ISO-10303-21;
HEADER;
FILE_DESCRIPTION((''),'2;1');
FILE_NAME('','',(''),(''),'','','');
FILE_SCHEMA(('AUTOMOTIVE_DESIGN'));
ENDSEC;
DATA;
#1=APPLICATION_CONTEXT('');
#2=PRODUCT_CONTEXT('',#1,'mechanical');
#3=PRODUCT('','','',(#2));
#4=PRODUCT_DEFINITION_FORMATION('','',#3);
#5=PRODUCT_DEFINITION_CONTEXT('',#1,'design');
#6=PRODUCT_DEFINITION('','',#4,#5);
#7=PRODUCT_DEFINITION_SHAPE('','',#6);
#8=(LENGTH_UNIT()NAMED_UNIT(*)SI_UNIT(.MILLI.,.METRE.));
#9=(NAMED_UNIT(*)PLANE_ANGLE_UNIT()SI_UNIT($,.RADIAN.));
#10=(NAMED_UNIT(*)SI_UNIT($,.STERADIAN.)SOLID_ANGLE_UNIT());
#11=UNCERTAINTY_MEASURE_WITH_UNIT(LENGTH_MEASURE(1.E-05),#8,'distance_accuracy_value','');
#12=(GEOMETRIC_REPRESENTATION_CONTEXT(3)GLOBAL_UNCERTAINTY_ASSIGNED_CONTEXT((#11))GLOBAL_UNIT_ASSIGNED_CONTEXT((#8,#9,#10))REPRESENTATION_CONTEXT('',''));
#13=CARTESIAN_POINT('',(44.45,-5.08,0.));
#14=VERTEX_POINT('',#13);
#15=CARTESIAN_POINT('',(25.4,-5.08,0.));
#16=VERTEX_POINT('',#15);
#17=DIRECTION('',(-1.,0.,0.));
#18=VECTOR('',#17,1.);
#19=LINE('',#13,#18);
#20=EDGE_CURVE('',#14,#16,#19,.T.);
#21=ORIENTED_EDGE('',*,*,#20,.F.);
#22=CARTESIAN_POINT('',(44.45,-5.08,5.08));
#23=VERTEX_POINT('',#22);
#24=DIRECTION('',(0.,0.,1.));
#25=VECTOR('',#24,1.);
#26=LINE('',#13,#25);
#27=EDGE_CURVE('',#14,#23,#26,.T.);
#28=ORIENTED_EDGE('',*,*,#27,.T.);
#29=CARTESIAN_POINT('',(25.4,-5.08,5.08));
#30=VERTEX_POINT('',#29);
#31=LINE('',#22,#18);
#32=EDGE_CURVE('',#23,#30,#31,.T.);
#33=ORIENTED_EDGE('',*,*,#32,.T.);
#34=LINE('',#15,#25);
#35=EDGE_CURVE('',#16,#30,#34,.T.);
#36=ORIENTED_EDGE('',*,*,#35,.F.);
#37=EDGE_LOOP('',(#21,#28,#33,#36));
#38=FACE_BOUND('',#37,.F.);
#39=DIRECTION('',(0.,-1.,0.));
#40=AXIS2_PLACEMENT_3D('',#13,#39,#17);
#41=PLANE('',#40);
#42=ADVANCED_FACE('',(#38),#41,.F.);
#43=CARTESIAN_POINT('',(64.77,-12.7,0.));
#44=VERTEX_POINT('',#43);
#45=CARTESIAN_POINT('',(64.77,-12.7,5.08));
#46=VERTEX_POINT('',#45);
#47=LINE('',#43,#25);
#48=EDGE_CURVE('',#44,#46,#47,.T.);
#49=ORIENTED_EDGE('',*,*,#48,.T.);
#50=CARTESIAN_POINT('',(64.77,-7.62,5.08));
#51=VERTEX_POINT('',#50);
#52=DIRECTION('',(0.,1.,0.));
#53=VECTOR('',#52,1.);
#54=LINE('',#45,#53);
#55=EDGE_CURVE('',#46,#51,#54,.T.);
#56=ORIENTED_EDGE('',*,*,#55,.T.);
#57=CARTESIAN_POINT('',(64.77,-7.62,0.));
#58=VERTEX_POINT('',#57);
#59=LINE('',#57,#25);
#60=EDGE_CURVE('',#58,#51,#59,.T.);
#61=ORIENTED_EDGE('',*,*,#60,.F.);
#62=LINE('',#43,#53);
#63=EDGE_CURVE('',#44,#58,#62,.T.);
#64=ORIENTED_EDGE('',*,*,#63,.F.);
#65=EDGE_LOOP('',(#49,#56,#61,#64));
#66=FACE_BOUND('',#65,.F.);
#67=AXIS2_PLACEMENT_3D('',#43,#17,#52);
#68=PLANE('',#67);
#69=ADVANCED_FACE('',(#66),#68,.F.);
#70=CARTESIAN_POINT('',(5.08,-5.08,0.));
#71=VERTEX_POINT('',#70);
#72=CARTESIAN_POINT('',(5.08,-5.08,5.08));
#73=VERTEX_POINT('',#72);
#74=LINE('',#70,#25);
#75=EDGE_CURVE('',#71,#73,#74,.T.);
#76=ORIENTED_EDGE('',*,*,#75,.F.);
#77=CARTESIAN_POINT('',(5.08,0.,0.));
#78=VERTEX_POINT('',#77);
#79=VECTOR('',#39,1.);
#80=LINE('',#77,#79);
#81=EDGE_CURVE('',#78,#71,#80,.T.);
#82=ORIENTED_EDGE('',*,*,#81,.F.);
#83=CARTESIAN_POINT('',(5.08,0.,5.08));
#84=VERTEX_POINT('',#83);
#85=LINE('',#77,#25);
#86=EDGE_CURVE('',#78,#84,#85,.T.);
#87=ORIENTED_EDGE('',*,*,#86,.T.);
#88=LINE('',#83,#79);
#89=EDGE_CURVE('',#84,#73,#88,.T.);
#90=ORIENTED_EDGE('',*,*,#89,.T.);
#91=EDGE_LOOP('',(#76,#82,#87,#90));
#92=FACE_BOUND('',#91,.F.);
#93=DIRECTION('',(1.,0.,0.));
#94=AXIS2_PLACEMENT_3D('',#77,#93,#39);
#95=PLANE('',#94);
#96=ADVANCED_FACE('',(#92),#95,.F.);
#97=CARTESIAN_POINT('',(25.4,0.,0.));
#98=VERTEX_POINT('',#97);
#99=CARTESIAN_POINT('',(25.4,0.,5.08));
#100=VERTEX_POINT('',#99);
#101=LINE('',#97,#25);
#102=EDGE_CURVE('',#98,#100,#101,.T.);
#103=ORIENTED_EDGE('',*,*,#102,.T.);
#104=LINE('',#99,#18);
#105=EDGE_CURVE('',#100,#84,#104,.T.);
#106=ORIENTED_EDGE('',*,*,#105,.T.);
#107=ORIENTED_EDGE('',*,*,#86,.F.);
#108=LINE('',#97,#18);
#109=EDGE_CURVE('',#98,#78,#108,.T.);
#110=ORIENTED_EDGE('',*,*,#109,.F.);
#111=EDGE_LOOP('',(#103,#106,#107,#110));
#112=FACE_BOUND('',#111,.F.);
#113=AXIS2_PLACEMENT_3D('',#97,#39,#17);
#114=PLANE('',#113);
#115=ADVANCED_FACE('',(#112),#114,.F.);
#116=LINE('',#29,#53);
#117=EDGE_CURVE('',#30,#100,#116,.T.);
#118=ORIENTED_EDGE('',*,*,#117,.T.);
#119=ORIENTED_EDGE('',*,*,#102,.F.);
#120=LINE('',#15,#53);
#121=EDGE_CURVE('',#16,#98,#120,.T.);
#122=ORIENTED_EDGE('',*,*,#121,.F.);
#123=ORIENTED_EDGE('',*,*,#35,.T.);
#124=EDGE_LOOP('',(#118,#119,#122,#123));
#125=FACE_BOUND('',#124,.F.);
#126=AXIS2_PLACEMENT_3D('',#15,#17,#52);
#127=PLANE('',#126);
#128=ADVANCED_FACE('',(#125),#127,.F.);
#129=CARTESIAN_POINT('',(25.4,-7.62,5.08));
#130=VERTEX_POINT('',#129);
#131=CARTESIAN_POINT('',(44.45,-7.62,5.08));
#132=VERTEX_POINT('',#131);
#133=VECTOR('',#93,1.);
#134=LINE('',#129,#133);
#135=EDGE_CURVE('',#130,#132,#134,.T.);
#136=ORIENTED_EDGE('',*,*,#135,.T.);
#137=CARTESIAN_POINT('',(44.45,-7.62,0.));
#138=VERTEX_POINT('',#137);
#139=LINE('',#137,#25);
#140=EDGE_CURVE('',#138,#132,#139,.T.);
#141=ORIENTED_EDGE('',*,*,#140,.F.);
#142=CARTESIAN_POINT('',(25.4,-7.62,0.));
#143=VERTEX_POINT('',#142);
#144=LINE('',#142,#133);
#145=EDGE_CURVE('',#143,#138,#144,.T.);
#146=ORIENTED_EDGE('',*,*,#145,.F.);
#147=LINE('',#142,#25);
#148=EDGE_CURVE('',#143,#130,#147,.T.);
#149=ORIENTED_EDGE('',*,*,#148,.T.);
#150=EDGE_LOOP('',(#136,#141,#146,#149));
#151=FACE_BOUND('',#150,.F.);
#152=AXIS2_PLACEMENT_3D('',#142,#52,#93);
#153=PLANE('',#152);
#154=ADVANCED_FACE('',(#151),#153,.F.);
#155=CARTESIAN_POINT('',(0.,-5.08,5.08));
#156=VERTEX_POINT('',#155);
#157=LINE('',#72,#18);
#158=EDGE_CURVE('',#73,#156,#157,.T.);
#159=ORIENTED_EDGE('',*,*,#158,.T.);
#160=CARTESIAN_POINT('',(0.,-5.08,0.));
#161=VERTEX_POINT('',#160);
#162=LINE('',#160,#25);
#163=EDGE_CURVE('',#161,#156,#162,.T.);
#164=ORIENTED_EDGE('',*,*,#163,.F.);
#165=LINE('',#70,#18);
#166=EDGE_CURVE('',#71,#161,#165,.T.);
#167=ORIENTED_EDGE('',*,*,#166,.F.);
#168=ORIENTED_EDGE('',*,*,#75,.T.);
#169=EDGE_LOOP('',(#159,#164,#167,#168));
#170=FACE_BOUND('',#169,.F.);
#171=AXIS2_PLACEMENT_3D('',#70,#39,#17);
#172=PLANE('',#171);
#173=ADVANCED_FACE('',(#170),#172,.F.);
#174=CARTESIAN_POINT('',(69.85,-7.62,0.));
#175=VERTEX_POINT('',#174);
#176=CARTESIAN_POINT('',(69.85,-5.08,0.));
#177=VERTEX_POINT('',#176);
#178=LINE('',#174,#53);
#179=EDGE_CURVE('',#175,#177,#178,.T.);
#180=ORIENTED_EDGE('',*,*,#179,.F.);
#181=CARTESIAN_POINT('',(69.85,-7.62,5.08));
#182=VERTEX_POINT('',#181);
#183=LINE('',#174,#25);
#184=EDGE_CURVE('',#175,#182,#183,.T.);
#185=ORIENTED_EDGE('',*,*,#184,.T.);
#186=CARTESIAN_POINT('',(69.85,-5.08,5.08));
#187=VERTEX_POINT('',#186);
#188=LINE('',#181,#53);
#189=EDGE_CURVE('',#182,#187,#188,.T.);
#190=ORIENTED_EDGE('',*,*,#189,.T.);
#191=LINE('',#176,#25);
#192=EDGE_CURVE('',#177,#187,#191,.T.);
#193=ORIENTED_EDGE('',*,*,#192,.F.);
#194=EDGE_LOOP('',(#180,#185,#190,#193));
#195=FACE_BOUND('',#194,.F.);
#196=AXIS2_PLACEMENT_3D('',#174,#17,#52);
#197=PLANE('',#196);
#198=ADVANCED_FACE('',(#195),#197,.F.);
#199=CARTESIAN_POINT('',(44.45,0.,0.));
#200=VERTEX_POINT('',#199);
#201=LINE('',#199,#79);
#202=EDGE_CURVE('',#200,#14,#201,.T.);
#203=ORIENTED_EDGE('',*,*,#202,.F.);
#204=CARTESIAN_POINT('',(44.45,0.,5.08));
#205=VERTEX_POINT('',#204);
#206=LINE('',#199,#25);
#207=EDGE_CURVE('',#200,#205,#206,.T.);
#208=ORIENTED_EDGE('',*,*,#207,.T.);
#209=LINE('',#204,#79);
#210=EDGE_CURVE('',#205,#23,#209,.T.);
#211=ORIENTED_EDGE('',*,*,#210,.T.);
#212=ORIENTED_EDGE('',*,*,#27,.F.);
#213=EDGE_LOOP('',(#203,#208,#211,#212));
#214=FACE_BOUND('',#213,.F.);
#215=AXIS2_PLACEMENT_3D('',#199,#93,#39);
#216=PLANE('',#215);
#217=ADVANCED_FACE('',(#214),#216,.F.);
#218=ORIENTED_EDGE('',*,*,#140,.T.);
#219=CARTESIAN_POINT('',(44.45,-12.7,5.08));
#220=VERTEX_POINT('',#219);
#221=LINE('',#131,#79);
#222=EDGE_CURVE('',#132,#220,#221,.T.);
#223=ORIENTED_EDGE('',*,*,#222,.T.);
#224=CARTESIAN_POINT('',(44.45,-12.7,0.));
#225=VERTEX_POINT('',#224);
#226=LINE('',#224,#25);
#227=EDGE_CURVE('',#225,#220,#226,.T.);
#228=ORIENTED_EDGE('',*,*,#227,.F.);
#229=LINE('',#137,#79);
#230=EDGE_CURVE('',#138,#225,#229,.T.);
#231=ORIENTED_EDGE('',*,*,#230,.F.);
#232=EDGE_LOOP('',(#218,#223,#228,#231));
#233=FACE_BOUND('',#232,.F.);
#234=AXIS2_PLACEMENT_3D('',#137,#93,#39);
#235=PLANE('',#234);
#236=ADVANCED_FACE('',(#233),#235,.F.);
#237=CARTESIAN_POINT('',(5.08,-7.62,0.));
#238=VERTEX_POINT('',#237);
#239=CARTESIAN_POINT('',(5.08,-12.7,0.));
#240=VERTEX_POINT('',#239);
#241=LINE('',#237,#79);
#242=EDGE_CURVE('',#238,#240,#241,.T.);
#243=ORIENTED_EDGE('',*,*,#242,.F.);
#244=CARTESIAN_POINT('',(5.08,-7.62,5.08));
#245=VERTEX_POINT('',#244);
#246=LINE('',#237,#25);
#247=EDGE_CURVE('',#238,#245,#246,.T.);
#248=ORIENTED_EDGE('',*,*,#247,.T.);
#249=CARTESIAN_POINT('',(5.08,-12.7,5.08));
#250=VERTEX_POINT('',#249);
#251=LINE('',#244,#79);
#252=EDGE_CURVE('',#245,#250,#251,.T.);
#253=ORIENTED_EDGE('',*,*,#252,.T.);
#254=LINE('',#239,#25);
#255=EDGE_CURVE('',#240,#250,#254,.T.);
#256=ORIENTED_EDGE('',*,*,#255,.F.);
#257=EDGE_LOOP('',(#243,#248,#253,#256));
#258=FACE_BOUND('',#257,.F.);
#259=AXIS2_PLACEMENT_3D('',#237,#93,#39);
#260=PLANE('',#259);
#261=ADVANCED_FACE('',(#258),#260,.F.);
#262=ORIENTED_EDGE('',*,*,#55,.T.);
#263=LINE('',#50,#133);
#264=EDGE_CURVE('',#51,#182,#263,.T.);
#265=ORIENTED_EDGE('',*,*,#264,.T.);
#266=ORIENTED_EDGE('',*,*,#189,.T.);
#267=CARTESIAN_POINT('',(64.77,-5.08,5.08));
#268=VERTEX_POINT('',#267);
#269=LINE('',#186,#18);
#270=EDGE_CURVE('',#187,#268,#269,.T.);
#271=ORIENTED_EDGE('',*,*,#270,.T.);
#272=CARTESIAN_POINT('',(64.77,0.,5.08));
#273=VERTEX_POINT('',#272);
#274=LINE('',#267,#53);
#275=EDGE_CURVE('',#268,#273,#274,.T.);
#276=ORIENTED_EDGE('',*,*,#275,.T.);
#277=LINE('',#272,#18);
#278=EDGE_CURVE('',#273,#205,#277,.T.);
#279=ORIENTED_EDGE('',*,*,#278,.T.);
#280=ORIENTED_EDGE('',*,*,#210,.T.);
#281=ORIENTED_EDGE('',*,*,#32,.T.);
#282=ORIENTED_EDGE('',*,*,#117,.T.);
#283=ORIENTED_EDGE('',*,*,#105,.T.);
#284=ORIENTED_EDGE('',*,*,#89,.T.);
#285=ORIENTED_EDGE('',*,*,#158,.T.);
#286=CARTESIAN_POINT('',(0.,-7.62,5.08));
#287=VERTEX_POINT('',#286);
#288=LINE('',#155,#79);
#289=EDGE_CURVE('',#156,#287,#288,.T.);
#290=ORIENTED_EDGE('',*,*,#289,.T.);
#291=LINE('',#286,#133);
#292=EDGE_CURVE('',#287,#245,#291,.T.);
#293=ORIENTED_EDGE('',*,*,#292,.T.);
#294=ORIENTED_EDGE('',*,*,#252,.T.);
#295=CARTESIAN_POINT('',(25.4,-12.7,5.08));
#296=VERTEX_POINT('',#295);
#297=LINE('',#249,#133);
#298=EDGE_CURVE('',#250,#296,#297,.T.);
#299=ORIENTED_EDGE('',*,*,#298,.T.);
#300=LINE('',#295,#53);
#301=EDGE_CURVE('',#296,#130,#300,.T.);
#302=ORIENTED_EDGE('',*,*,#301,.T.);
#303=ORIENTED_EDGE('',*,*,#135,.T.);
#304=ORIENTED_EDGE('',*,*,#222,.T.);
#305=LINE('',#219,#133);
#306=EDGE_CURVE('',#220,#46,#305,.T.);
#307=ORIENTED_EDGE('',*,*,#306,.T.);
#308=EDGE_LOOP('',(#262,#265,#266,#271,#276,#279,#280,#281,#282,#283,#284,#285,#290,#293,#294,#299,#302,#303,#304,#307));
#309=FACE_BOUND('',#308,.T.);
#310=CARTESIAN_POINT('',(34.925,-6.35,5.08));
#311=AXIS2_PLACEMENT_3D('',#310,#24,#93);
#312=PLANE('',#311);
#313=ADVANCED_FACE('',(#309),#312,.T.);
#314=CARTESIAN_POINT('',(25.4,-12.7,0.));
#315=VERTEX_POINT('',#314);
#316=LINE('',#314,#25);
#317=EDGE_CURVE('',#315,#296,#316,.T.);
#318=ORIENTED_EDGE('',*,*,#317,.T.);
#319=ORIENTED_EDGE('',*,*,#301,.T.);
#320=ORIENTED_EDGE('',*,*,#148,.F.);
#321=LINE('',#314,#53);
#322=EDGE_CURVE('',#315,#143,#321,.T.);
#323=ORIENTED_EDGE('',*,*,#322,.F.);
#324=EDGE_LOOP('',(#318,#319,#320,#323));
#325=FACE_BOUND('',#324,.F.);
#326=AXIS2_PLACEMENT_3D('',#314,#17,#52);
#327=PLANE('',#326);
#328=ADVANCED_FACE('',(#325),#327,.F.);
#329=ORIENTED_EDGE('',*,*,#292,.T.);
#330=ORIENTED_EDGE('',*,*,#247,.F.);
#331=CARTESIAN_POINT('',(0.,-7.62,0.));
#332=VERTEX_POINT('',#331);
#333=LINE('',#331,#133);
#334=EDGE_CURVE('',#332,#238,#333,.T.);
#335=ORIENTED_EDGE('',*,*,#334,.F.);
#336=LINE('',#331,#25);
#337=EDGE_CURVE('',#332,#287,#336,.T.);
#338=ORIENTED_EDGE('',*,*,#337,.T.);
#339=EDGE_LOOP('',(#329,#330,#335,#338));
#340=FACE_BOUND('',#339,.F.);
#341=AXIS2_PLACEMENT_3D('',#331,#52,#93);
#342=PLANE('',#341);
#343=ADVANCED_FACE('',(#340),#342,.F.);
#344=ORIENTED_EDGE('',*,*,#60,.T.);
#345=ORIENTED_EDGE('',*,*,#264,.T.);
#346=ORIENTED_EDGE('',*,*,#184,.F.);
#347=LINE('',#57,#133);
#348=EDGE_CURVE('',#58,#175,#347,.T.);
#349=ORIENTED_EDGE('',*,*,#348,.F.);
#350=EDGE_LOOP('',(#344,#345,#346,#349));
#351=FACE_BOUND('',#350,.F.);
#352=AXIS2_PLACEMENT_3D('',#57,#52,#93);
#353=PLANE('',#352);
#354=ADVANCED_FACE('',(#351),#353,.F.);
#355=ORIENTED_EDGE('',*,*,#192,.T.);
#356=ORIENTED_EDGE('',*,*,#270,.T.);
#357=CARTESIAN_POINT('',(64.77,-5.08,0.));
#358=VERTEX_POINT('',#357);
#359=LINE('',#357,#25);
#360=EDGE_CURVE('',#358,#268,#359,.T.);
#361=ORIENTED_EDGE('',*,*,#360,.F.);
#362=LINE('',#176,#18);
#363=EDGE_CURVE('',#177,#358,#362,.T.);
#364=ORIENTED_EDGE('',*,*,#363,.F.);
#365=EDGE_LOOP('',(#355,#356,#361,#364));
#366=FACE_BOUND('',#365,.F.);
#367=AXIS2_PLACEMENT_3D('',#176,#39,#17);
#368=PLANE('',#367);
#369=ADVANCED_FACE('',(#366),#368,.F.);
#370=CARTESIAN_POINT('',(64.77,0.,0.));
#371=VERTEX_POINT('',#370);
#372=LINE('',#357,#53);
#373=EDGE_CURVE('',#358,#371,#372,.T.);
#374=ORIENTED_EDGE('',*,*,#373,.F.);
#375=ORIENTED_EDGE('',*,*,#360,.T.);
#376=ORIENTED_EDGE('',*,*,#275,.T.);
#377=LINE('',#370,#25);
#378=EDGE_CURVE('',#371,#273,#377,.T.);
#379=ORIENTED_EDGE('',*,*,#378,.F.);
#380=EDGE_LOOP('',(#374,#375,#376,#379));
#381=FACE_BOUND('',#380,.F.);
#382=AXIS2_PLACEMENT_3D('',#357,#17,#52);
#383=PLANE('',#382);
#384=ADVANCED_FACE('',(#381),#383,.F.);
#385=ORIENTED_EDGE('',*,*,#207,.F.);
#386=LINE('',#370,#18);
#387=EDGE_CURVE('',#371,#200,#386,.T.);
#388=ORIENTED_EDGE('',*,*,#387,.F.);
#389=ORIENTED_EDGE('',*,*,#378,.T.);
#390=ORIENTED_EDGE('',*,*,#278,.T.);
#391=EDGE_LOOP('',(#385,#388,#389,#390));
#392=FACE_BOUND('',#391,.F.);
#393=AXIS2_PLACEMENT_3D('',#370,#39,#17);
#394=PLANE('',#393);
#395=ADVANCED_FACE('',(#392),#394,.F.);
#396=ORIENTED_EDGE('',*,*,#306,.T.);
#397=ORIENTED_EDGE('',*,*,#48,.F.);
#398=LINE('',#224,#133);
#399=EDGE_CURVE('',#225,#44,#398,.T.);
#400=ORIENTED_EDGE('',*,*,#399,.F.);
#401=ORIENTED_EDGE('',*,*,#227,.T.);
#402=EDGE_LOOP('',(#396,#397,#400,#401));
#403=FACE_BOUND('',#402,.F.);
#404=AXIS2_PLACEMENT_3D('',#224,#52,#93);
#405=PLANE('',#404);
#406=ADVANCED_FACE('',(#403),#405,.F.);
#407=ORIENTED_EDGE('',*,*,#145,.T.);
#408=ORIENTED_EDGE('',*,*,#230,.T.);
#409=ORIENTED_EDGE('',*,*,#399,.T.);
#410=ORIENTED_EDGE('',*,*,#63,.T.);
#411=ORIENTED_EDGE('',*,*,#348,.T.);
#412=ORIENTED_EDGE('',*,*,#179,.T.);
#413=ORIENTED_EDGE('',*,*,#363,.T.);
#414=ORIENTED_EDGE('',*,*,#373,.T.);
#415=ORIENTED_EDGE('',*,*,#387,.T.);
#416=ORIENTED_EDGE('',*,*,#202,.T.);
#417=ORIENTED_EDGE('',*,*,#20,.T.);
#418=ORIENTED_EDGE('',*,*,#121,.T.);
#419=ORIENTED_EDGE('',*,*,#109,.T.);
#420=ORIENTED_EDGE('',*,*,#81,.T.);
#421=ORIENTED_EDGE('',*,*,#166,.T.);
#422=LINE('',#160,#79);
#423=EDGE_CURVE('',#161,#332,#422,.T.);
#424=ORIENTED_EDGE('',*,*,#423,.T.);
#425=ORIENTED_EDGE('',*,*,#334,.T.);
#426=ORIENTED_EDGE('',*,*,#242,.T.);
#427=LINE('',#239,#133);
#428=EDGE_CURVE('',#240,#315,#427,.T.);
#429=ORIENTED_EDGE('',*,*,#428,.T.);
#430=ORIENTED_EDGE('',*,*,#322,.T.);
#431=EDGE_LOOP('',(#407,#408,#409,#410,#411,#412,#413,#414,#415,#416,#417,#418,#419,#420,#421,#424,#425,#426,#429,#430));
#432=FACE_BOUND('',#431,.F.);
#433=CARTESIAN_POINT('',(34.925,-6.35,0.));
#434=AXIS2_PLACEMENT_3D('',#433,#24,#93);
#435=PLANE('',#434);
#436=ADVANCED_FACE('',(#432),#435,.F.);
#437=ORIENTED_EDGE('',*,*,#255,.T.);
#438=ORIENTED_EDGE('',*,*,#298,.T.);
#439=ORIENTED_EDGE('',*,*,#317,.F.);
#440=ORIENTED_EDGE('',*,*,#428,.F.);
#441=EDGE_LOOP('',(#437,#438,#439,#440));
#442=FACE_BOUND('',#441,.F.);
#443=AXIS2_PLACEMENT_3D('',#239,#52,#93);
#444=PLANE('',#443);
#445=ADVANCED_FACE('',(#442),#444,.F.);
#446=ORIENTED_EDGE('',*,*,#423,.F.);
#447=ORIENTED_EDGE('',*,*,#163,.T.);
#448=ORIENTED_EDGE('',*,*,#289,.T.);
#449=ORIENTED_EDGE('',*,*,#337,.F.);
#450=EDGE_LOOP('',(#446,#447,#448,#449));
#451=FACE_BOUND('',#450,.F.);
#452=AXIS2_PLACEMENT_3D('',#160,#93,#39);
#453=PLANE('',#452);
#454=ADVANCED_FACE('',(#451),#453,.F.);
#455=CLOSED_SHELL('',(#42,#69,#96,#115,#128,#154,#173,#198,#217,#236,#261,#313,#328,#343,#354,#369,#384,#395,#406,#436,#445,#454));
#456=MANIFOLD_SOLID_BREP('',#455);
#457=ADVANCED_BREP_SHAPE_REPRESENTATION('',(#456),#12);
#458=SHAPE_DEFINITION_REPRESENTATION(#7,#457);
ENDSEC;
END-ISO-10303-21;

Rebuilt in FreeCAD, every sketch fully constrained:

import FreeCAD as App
import Part
import Sketcher

V = App.Vector
Q = App.Units.Quantity

doc = App.newDocument("Part")
body = doc.addObject("PartDesign::Body", "Body")

sketch1 = body.newObject("Sketcher::SketchObject", "Sketch")
sketch1.AttachmentSupport = (doc.getObject("XY_Plane"), [""])
sketch1.MapMode = "FlatFace"
sketch1.addGeometry(Part.LineSegment(V(25.4, 0, 0), V(5.1, 0, 0)), False)
sketch1.addGeometry(Part.LineSegment(V(5.1, 0, 0), V(5.1, -5.1, 0)), False)
sketch1.addGeometry(Part.LineSegment(V(5.1, -5.1, 0), V(0, -5.1, 0)), False)
sketch1.addGeometry(Part.LineSegment(V(0, -5.1, 0), V(0, -7.6, 0)), False)
sketch1.addGeometry(Part.LineSegment(V(0, -7.6, 0), V(5.1, -7.6, 0)), False)
sketch1.addGeometry(Part.LineSegment(V(5.1, -7.6, 0), V(5.1, -12.7, 0)), False)
sketch1.addGeometry(Part.LineSegment(V(5.1, -12.7, 0), V(25.4, -12.7, 0)), False)
sketch1.addGeometry(Part.LineSegment(V(25.4, -12.7, 0), V(25.4, -7.6, 0)), False)
sketch1.addGeometry(Part.LineSegment(V(25.4, -7.6, 0), V(44.5, -7.6, 0)), False)
sketch1.addGeometry(Part.LineSegment(V(44.5, -7.6, 0), V(44.5, -12.7, 0)), False)
sketch1.addGeometry(Part.LineSegment(V(44.5, -12.7, 0), V(64.8, -12.7, 0)), False)
sketch1.addGeometry(Part.LineSegment(V(64.8, -12.7, 0), V(64.8, -7.6, 0)), False)
sketch1.addGeometry(Part.LineSegment(V(64.8, -7.6, 0), V(69.8, -7.6, 0)), False)
sketch1.addGeometry(Part.LineSegment(V(69.8, -7.6, 0), V(69.8, -5.1, 0)), False)
sketch1.addGeometry(Part.LineSegment(V(69.8, -5.1, 0), V(64.8, -5.1, 0)), False)
sketch1.addGeometry(Part.LineSegment(V(64.8, -5.1, 0), V(64.8, 0, 0)), False)
sketch1.addGeometry(Part.LineSegment(V(64.8, 0, 0), V(44.5, 0, 0)), False)
sketch1.addGeometry(Part.LineSegment(V(44.5, 0, 0), V(44.5, -5.1, 0)), False)
sketch1.addGeometry(Part.LineSegment(V(44.5, -5.1, 0), V(25.4, -5.1, 0)), False)
sketch1.addGeometry(Part.LineSegment(V(25.4, -5.1, 0), V(25.4, 0, 0)), False)
sketch1.addConstraint(Sketcher.Constraint("Coincident", 0, 2, 1, 1))
sketch1.addConstraint(Sketcher.Constraint("Coincident", 1, 2, 2, 1))
sketch1.addConstraint(Sketcher.Constraint("Coincident", 2, 2, 3, 1))
sketch1.addConstraint(Sketcher.Constraint("Coincident", 3, 2, 4, 1))
sketch1.addConstraint(Sketcher.Constraint("Coincident", 4, 2, 5, 1))
sketch1.addConstraint(Sketcher.Constraint("Coincident", 5, 2, 6, 1))
sketch1.addConstraint(Sketcher.Constraint("Coincident", 6, 2, 7, 1))
sketch1.addConstraint(Sketcher.Constraint("Coincident", 7, 2, 8, 1))
sketch1.addConstraint(Sketcher.Constraint("Coincident", 8, 2, 9, 1))
sketch1.addConstraint(Sketcher.Constraint("Coincident", 9, 2, 10, 1))
sketch1.addConstraint(Sketcher.Constraint("Coincident", 10, 2, 11, 1))
sketch1.addConstraint(Sketcher.Constraint("Coincident", 11, 2, 12, 1))
sketch1.addConstraint(Sketcher.Constraint("Coincident", 12, 2, 13, 1))
sketch1.addConstraint(Sketcher.Constraint("Coincident", 13, 2, 14, 1))
sketch1.addConstraint(Sketcher.Constraint("Coincident", 14, 2, 15, 1))
sketch1.addConstraint(Sketcher.Constraint("Coincident", 15, 2, 16, 1))
sketch1.addConstraint(Sketcher.Constraint("Coincident", 16, 2, 17, 1))
sketch1.addConstraint(Sketcher.Constraint("Coincident", 17, 2, 18, 1))
sketch1.addConstraint(Sketcher.Constraint("Coincident", 18, 2, 19, 1))
sketch1.addConstraint(Sketcher.Constraint("Coincident", 19, 2, 0, 1))
sketch1.addConstraint(Sketcher.Constraint("Horizontal", 0))
sketch1.addConstraint(Sketcher.Constraint("Vertical", 1))
sketch1.addConstraint(Sketcher.Constraint("Horizontal", 2))
sketch1.addConstraint(Sketcher.Constraint("Vertical", 3))
sketch1.addConstraint(Sketcher.Constraint("Horizontal", 4))
sketch1.addConstraint(Sketcher.Constraint("Vertical", 5))
sketch1.addConstraint(Sketcher.Constraint("Horizontal", 6))
sketch1.addConstraint(Sketcher.Constraint("Vertical", 7))
sketch1.addConstraint(Sketcher.Constraint("Horizontal", 8))
sketch1.addConstraint(Sketcher.Constraint("Vertical", 9))
sketch1.addConstraint(Sketcher.Constraint("Horizontal", 10))
sketch1.addConstraint(Sketcher.Constraint("Vertical", 11))
sketch1.addConstraint(Sketcher.Constraint("Horizontal", 12))
sketch1.addConstraint(Sketcher.Constraint("Vertical", 13))
sketch1.addConstraint(Sketcher.Constraint("Horizontal", 14))
sketch1.addConstraint(Sketcher.Constraint("Vertical", 15))
sketch1.addConstraint(Sketcher.Constraint("Horizontal", 16))
sketch1.addConstraint(Sketcher.Constraint("Vertical", 17))
sketch1.addConstraint(Sketcher.Constraint("Horizontal", 18))
sketch1.addConstraint(Sketcher.Constraint("Vertical", 19))
sketch1.addConstraint(Sketcher.Constraint("PointOnObject", 0, 2, -1))
sketch1.addConstraint(Sketcher.Constraint("PointOnObject", 2, 2, -2))
sketch1.addConstraint(Sketcher.Constraint("PointOnObject", 15, 2, -1))
sketch1.addConstraint(Sketcher.Constraint("Horizontal", 4, 2, 7, 2))
sketch1.addConstraint(Sketcher.Constraint("Horizontal", 6, 2, 9, 2))
sketch1.addConstraint(Sketcher.Constraint("Horizontal", 8, 2, 11, 2))
sketch1.addConstraint(Sketcher.Constraint("Horizontal", 2, 2, 13, 2))
sketch1.addConstraint(Sketcher.Constraint("Horizontal", 14, 2, 17, 2))
sketch1.addConstraint(Sketcher.Constraint("Vertical", 1, 2, 4, 2))
sketch1.addConstraint(Sketcher.Constraint("Vertical", 11, 2, 14, 2))
sketch1.addConstraint(Sketcher.Constraint("Vertical", 9, 2, 16, 2))
sketch1.addConstraint(Sketcher.Constraint("Vertical", 7, 2, 18, 2))
sketch1.addConstraint(Sketcher.Constraint("Equal", 6, 10))
sketch1.addConstraint(Sketcher.Constraint("Equal", 4, 12))
sketch1.addConstraint(Sketcher.Constraint("Equal", 14, 1))
sketch1.addConstraint(Sketcher.Constraint("Equal", 1, 5))
sketch1.addConstraint(Sketcher.Constraint("DistanceX", 0, 2, 0, 1, Q("0.8 in")))
sketch1.addConstraint(Sketcher.Constraint("DistanceX", 2, 2, 2, 1, Q("0.2 in")))
sketch1.addConstraint(Sketcher.Constraint("DistanceY", 3, 2, 3, 1, Q("0.1 in")))
sketch1.addConstraint(Sketcher.Constraint("DistanceX", 8, 1, 8, 2, Q("0.75 in")))
pad1 = body.newObject("PartDesign::Pad", "Pad")
pad1.Profile = sketch1
pad1.Length = Q("0.2 in")

doc.recompute()
